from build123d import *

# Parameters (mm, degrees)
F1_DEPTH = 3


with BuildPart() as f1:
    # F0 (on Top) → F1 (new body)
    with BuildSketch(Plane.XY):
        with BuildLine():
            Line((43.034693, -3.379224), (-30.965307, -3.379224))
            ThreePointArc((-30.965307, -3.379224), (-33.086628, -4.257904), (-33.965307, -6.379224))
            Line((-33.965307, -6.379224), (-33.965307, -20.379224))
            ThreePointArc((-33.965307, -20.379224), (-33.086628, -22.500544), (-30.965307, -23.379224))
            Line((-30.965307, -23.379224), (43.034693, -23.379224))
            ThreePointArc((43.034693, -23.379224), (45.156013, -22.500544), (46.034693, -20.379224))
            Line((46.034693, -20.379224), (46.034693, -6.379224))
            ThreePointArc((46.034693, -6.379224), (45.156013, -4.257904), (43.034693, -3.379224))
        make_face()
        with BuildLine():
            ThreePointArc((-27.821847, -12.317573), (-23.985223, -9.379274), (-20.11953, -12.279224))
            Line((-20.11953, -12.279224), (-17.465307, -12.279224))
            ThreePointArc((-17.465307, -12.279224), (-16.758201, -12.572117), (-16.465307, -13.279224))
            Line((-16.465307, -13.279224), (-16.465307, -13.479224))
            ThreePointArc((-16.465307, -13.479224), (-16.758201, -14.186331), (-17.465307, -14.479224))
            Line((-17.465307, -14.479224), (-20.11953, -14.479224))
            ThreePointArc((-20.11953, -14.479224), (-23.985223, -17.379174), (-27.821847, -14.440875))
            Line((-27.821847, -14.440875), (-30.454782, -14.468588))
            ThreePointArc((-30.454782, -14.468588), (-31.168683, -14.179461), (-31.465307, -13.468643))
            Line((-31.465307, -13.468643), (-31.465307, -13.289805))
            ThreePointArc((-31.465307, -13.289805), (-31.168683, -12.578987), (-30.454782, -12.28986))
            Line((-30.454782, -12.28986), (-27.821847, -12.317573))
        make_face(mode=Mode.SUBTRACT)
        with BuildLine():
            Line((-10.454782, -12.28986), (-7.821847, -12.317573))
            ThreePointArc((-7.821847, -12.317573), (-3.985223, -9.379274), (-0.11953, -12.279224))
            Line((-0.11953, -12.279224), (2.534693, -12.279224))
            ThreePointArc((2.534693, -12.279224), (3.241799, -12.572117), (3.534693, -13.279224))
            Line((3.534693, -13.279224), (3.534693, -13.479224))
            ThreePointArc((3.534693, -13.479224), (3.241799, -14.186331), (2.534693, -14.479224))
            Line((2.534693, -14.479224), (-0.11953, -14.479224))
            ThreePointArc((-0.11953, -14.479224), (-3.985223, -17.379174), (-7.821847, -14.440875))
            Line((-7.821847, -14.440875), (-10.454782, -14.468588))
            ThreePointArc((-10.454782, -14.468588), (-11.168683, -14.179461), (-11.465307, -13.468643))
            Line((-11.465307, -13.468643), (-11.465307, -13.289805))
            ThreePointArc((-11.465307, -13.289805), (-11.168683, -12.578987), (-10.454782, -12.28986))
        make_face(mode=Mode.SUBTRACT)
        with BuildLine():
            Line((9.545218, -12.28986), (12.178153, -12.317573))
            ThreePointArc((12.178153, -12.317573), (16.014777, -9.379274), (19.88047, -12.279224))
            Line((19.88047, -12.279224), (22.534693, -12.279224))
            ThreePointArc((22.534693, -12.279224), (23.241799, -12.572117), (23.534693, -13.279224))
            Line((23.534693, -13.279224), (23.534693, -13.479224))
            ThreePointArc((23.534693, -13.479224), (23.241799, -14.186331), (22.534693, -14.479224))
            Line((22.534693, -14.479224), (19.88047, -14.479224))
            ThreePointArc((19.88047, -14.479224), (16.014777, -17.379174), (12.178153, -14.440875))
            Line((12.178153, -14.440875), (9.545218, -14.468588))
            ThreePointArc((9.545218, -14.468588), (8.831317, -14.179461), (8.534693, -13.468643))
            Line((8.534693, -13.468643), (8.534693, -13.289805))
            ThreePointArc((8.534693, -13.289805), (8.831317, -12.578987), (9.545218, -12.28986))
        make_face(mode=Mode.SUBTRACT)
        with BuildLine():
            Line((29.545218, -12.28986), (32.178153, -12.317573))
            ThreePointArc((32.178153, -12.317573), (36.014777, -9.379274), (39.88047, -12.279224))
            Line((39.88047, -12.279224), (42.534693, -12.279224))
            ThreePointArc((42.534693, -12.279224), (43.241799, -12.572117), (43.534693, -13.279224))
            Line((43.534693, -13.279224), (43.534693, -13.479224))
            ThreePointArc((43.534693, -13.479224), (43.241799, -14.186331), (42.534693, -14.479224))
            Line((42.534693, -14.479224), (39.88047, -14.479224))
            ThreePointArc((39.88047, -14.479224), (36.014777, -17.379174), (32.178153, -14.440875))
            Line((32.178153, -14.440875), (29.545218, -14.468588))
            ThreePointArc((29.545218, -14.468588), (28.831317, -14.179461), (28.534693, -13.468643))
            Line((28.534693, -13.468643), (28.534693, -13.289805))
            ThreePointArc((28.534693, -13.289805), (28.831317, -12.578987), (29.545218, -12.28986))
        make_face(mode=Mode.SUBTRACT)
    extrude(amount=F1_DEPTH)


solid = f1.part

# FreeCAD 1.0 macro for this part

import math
import FreeCAD as App
import Part
import Sketcher
from FreeCAD import Vector
Q = App.Units.Quantity

doc = App.newDocument("Part")
body = doc.addObject("PartDesign::Body", "Body")

# Sketch on XY plane
sketch1 = doc.addObject("Sketcher::SketchObject", "Sketch")
body.addObject(sketch1)
sketch1.AttachmentSupport = (doc.XY_Plane, [""])
sketch1.MapMode = "FlatFace"
sketch1.addGeometry(Part.LineSegment(Vector(43.03, -3.38, 0), Vector(-30.97, -3.38, 0)), False)
sketch1.addGeometry(Part.ArcOfCircle(Part.Circle(Vector(-30.97, -6.38, 0), Vector(0, 0, 1), 3), math.radians(90), math.radians(180)), False)
sketch1.addGeometry(Part.LineSegment(Vector(-33.97, -6.38, 0), Vector(-33.97, -20.38, 0)), False)
sketch1.addGeometry(Part.ArcOfCircle(Part.Circle(Vector(-30.97, -20.38, 0), Vector(0, 0, 1), 3), math.radians(180), math.radians(270)), False)
sketch1.addGeometry(Part.LineSegment(Vector(-30.97, -23.38, 0), Vector(43.03, -23.38, 0)), False)
sketch1.addGeometry(Part.ArcOfCircle(Part.Circle(Vector(43.03, -20.38, 0), Vector(0, 0, 1), 3), math.radians(-90), math.radians(0)), False)
sketch1.addGeometry(Part.LineSegment(Vector(46.03, -20.38, 0), Vector(46.03, -6.38, 0)), False)
sketch1.addGeometry(Part.ArcOfCircle(Part.Circle(Vector(43.03, -6.38, 0), Vector(0, 0, 1), 3), math.radians(0), math.radians(90)), False)
sketch1.addGeometry(Part.ArcOfCircle(Part.Circle(Vector(-10.47, -13.29, 0), Vector(0, 0, 1), 1), math.radians(89), math.radians(180)), False)
sketch1.addGeometry(Part.LineSegment(Vector(-10.45, -12.29, 0), Vector(-7.82, -12.32, 0)), False)
sketch1.addGeometry(Part.ArcOfCircle(Part.Circle(Vector(-3.97, -13.38, 0), Vector(0, 0, 1), 4), math.radians(16), math.radians(165)), False)
sketch1.addGeometry(Part.LineSegment(Vector(-0.12, -12.28, 0), Vector(2.53, -12.28, 0)), False)
sketch1.addGeometry(Part.ArcOfCircle(Part.Circle(Vector(2.53, -13.28, 0), Vector(0, 0, 1), 1), math.radians(0), math.radians(90)), False)
sketch1.addGeometry(Part.LineSegment(Vector(3.53, -13.28, 0), Vector(3.53, -13.48, 0)), False)
sketch1.addGeometry(Part.ArcOfCircle(Part.Circle(Vector(2.53, -13.48, 0), Vector(0, 0, 1), 1), math.radians(-90), math.radians(0)), False)
sketch1.addGeometry(Part.LineSegment(Vector(2.53, -14.48, 0), Vector(-0.12, -14.48, 0)), False)
sketch1.addGeometry(Part.ArcOfCircle(Part.Circle(Vector(-3.97, -13.38, 0), Vector(0, 0, 1), 4), math.radians(-165), math.radians(-16)), False)
sketch1.addGeometry(Part.LineSegment(Vector(-7.82, -14.44, 0), Vector(-10.45, -14.47, 0)), False)
sketch1.addGeometry(Part.ArcOfCircle(Part.Circle(Vector(-10.47, -13.47, 0), Vector(0, 0, 1), 1), math.radians(-180), math.radians(-89)), False)
sketch1.addGeometry(Part.LineSegment(Vector(-11.47, -13.47, 0), Vector(-11.47, -13.29, 0)), False)
sketch1.addGeometry(Part.ArcOfCircle(Part.Circle(Vector(9.53, -13.29, 0), Vector(0, 0, 1), 1), math.radians(89), math.radians(180)), False)
sketch1.addGeometry(Part.LineSegment(Vector(9.55, -12.29, 0), Vector(12.18, -12.32, 0)), False)
sketch1.addGeometry(Part.ArcOfCircle(Part.Circle(Vector(16.03, -13.38, 0), Vector(0, 0, 1), 4), math.radians(16), math.radians(165)), False)
sketch1.addGeometry(Part.LineSegment(Vector(19.88, -12.28, 0), Vector(22.53, -12.28, 0)), False)
sketch1.addGeometry(Part.ArcOfCircle(Part.Circle(Vector(22.53, -13.28, 0), Vector(0, 0, 1), 1), math.radians(0), math.radians(90)), False)
sketch1.addGeometry(Part.LineSegment(Vector(23.53, -13.28, 0), Vector(23.53, -13.48, 0)), False)
sketch1.addGeometry(Part.ArcOfCircle(Part.Circle(Vector(22.53, -13.48, 0), Vector(0, 0, 1), 1), math.radians(-90), math.radians(0)), False)
sketch1.addGeometry(Part.LineSegment(Vector(22.53, -14.48, 0), Vector(19.88, -14.48, 0)), False)
sketch1.addGeometry(Part.ArcOfCircle(Part.Circle(Vector(16.03, -13.38, 0), Vector(0, 0, 1), 4), math.radians(-165), math.radians(-16)), False)
sketch1.addGeometry(Part.LineSegment(Vector(12.18, -14.44, 0), Vector(9.55, -14.47, 0)), False)
sketch1.addGeometry(Part.ArcOfCircle(Part.Circle(Vector(9.53, -13.47, 0), Vector(0, 0, 1), 1), math.radians(-180), math.radians(-89)), False)
sketch1.addGeometry(Part.LineSegment(Vector(8.53, -13.47, 0), Vector(8.53, -13.29, 0)), False)
sketch1.addGeometry(Part.LineSegment(Vector(-30.45, -12.29, 0), Vector(-27.82, -12.32, 0)), False)
sketch1.addGeometry(Part.ArcOfCircle(Part.Circle(Vector(-23.97, -13.38, 0), Vector(0, 0, 1), 4), math.radians(16), math.radians(165)), False)
sketch1.addGeometry(Part.LineSegment(Vector(-20.12, -12.28, 0), Vector(-17.47, -12.28, 0)), False)
sketch1.addGeometry(Part.ArcOfCircle(Part.Circle(Vector(-17.47, -13.28, 0), Vector(0, 0, 1), 1), math.radians(0), math.radians(90)), False)
sketch1.addGeometry(Part.LineSegment(Vector(-16.47, -13.28, 0), Vector(-16.47, -13.48, 0)), False)
sketch1.addGeometry(Part.ArcOfCircle(Part.Circle(Vector(-17.47, -13.48, 0), Vector(0, 0, 1), 1), math.radians(-90), math.radians(0)), False)
sketch1.addGeometry(Part.LineSegment(Vector(-17.47, -14.48, 0), Vector(-20.12, -14.48, 0)), False)
sketch1.addGeometry(Part.ArcOfCircle(Part.Circle(Vector(-23.97, -13.38, 0), Vector(0, 0, 1), 4), math.radians(-165), math.radians(-16)), False)
sketch1.addGeometry(Part.LineSegment(Vector(-27.82, -14.44, 0), Vector(-30.45, -14.47, 0)), False)
sketch1.addGeometry(Part.ArcOfCircle(Part.Circle(Vector(-30.47, -13.47, 0), Vector(0, 0, 1), 1), math.radians(-180), math.radians(-89)), False)
sketch1.addGeometry(Part.LineSegment(Vector(-31.47, -13.47, 0), Vector(-31.47, -13.29, 0)), False)
sketch1.addGeometry(Part.ArcOfCircle(Part.Circle(Vector(-30.47, -13.29, 0), Vector(0, 0, 1), 1), math.radians(89), math.radians(180)), False)
sketch1.addGeometry(Part.ArcOfCircle(Part.Circle(Vector(29.53, -13.29, 0), Vector(0, 0, 1), 1), math.radians(89), math.radians(180)), False)
sketch1.addGeometry(Part.LineSegment(Vector(29.55, -12.29, 0), Vector(32.18, -12.32, 0)), False)
sketch1.addGeometry(Part.ArcOfCircle(Part.Circle(Vector(36.03, -13.38, 0), Vector(0, 0, 1), 4), math.radians(16), math.radians(165)), False)
sketch1.addGeometry(Part.LineSegment(Vector(39.88, -12.28, 0), Vector(42.53, -12.28, 0)), False)
sketch1.addGeometry(Part.ArcOfCircle(Part.Circle(Vector(42.53, -13.28, 0), Vector(0, 0, 1), 1), math.radians(0), math.radians(90)), False)
sketch1.addGeometry(Part.LineSegment(Vector(43.53, -13.28, 0), Vector(43.53, -13.48, 0)), False)
sketch1.addGeometry(Part.ArcOfCircle(Part.Circle(Vector(42.53, -13.48, 0), Vector(0, 0, 1), 1), math.radians(-90), math.radians(0)), False)
sketch1.addGeometry(Part.LineSegment(Vector(42.53, -14.48, 0), Vector(39.88, -14.48, 0)), False)
sketch1.addGeometry(Part.ArcOfCircle(Part.Circle(Vector(36.03, -13.38, 0), Vector(0, 0, 1), 4), math.radians(-165), math.radians(-16)), False)
sketch1.addGeometry(Part.LineSegment(Vector(32.18, -14.44, 0), Vector(29.55, -14.47, 0)), False)
sketch1.addGeometry(Part.ArcOfCircle(Part.Circle(Vector(29.53, -13.47, 0), Vector(0, 0, 1), 1), math.radians(-180), math.radians(-89)), False)
sketch1.addGeometry(Part.LineSegment(Vector(28.53, -13.47, 0), Vector(28.53, -13.29, 0)), False)
sketch1.addConstraint(Sketcher.Constraint("Tangent", 0, 2, 1, 1))
sketch1.addConstraint(Sketcher.Constraint("Tangent", 1, 2, 2, 1))
sketch1.addConstraint(Sketcher.Constraint("Tangent", 2, 2, 3, 1))
sketch1.addConstraint(Sketcher.Constraint("Tangent", 3, 2, 4, 1))
sketch1.addConstraint(Sketcher.Constraint("Tangent", 4, 2, 5, 1))
sketch1.addConstraint(Sketcher.Constraint("Tangent", 5, 2, 6, 1))
sketch1.addConstraint(Sketcher.Constraint("Tangent", 6, 2, 7, 1))
sketch1.addConstraint(Sketcher.Constraint("Tangent", 7, 2, 0, 1))
sketch1.addConstraint(Sketcher.Constraint("Tangent", 8, 1, 9, 1))
sketch1.addConstraint(Sketcher.Constraint("Coincident", 9, 2, 10, 2))
sketch1.addConstraint(Sketcher.Constraint("Coincident", 10, 1, 11, 1))
sketch1.addConstraint(Sketcher.Constraint("Tangent", 11, 2, 12, 2))
sketch1.addConstraint(Sketcher.Constraint("Tangent", 12, 1, 13, 1))
sketch1.addConstraint(Sketcher.Constraint("Tangent", 13, 2, 14, 2))
sketch1.addConstraint(Sketcher.Constraint("Tangent", 14, 1, 15, 1))
sketch1.addConstraint(Sketcher.Constraint("Coincident", 15, 2, 16, 2))
sketch1.addConstraint(Sketcher.Constraint("Coincident", 16, 1, 17, 1))
sketch1.addConstraint(Sketcher.Constraint("Tangent", 17, 2, 18, 2))
sketch1.addConstraint(Sketcher.Constraint("Tangent", 18, 1, 19, 1))
sketch1.addConstraint(Sketcher.Constraint("Tangent", 19, 2, 8, 2))
sketch1.addConstraint(Sketcher.Constraint("Tangent", 20, 1, 21, 1))
sketch1.addConstraint(Sketcher.Constraint("Coincident", 21, 2, 22, 2))
sketch1.addConstraint(Sketcher.Constraint("Coincident", 22, 1, 23, 1))
sketch1.addConstraint(Sketcher.Constraint("Tangent", 23, 2, 24, 2))
sketch1.addConstraint(Sketcher.Constraint("Tangent", 24, 1, 25, 1))
sketch1.addConstraint(Sketcher.Constraint("Tangent", 25, 2, 26, 2))
sketch1.addConstraint(Sketcher.Constraint("Tangent", 26, 1, 27, 1))
sketch1.addConstraint(Sketcher.Constraint("Coincident", 27, 2, 28, 2))
sketch1.addConstraint(Sketcher.Constraint("Coincident", 28, 1, 29, 1))
sketch1.addConstraint(Sketcher.Constraint("Tangent", 29, 2, 30, 2))
sketch1.addConstraint(Sketcher.Constraint("Tangent", 30, 1, 31, 1))
sketch1.addConstraint(Sketcher.Constraint("Tangent", 31, 2, 20, 2))
sketch1.addConstraint(Sketcher.Constraint("Coincident", 32, 2, 33, 2))
sketch1.addConstraint(Sketcher.Constraint("Coincident", 33, 1, 34, 1))
sketch1.addConstraint(Sketcher.Constraint("Tangent", 34, 2, 35, 2))
sketch1.addConstraint(Sketcher.Constraint("Tangent", 35, 1, 36, 1))
sketch1.addConstraint(Sketcher.Constraint("Tangent", 36, 2, 37, 2))
sketch1.addConstraint(Sketcher.Constraint("Tangent", 37, 1, 38, 1))
sketch1.addConstraint(Sketcher.Constraint("Coincident", 38, 2, 39, 2))
sketch1.addConstraint(Sketcher.Constraint("Coincident", 39, 1, 40, 1))
sketch1.addConstraint(Sketcher.Constraint("Tangent", 40, 2, 41, 2))
sketch1.addConstraint(Sketcher.Constraint("Tangent", 41, 1, 42, 1))
sketch1.addConstraint(Sketcher.Constraint("Tangent", 42, 2, 43, 2))
sketch1.addConstraint(Sketcher.Constraint("Tangent", 43, 1, 32, 1))
sketch1.addConstraint(Sketcher.Constraint("Tangent", 44, 1, 45, 1))
sketch1.addConstraint(Sketcher.Constraint("Coincident", 45, 2, 46, 2))
sketch1.addConstraint(Sketcher.Constraint("Coincident", 46, 1, 47, 1))
sketch1.addConstraint(Sketcher.Constraint("Tangent", 47, 2, 48, 2))
sketch1.addConstraint(Sketcher.Constraint("Tangent", 48, 1, 49, 1))
sketch1.addConstraint(Sketcher.Constraint("Tangent", 49, 2, 50, 2))
sketch1.addConstraint(Sketcher.Constraint("Tangent", 50, 1, 51, 1))
sketch1.addConstraint(Sketcher.Constraint("Coincident", 51, 2, 52, 2))
sketch1.addConstraint(Sketcher.Constraint("Coincident", 52, 1, 53, 1))
sketch1.addConstraint(Sketcher.Constraint("Tangent", 53, 2, 54, 2))
sketch1.addConstraint(Sketcher.Constraint("Tangent", 54, 1, 55, 1))
sketch1.addConstraint(Sketcher.Constraint("Tangent", 55, 2, 44, 2))
sketch1.addConstraint(Sketcher.Constraint("Horizontal", 0))
sketch1.addConstraint(Sketcher.Constraint("Vertical", 2))
sketch1.addConstraint(Sketcher.Constraint("Horizontal", 4))
sketch1.addConstraint(Sketcher.Constraint("Vertical", 6))
sketch1.addConstraint(Sketcher.Constraint("Horizontal", 11))
sketch1.addConstraint(Sketcher.Constraint("Vertical", 13))
sketch1.addConstraint(Sketcher.Constraint("Horizontal", 15))
sketch1.addConstraint(Sketcher.Constraint("Vertical", 19))
sketch1.addConstraint(Sketcher.Constraint("Horizontal", 23))
sketch1.addConstraint(Sketcher.Constraint("Vertical", 25))
sketch1.addConstraint(Sketcher.Constraint("Horizontal", 27))
sketch1.addConstraint(Sketcher.Constraint("Vertical", 31))
sketch1.addConstraint(Sketcher.Constraint("Horizontal", 34))
sketch1.addConstraint(Sketcher.Constraint("Vertical", 36))
sketch1.addConstraint(Sketcher.Constraint("Horizontal", 38))
sketch1.addConstraint(Sketcher.Constraint("Vertical", 42))
sketch1.addConstraint(Sketcher.Constraint("Horizontal", 47))
sketch1.addConstraint(Sketcher.Constraint("Vertical", 49))
sketch1.addConstraint(Sketcher.Constraint("Horizontal", 51))
sketch1.addConstraint(Sketcher.Constraint("Vertical", 55))
sketch1.addConstraint(Sketcher.Constraint("Coincident", 16, 3, 10, 3))
sketch1.addConstraint(Sketcher.Constraint("Coincident", 28, 3, 22, 3))
sketch1.addConstraint(Sketcher.Constraint("Coincident", 39, 3, 33, 3))
sketch1.addConstraint(Sketcher.Constraint("Coincident", 52, 3, 46, 3))
sketch1.addConstraint(Sketcher.Constraint("Equal", 1, 3))
sketch1.addConstraint(Sketcher.Constraint("Equal", 3, 5))
sketch1.addConstraint(Sketcher.Constraint("Equal", 5, 7))
sketch1.addConstraint(Sketcher.Constraint("Equal", 8, 12))
sketch1.addConstraint(Sketcher.Constraint("Equal", 12, 14))
sketch1.addConstraint(Sketcher.Constraint("Equal", 10, 16))
sketch1.addConstraint(Sketcher.Constraint("Equal", 14, 18))
sketch1.addConstraint(Sketcher.Constraint("Equal", 18, 20))
sketch1.addConstraint(Sketcher.Constraint("Equal", 16, 22))
sketch1.addConstraint(Sketcher.Constraint("Equal", 20, 24))
sketch1.addConstraint(Sketcher.Constraint("Equal", 24, 26))
sketch1.addConstraint(Sketcher.Constraint("Equal", 22, 28))
sketch1.addConstraint(Sketcher.Constraint("Equal", 26, 30))
sketch1.addConstraint(Sketcher.Constraint("Equal", 28, 33))
sketch1.addConstraint(Sketcher.Constraint("Equal", 30, 35))
sketch1.addConstraint(Sketcher.Constraint("Equal", 35, 37))
sketch1.addConstraint(Sketcher.Constraint("Equal", 33, 39))
sketch1.addConstraint(Sketcher.Constraint("Equal", 37, 41))
sketch1.addConstraint(Sketcher.Constraint("Equal", 41, 43))
sketch1.addConstraint(Sketcher.Constraint("Equal", 43, 44))
sketch1.addConstraint(Sketcher.Constraint("Equal", 39, 46))
sketch1.addConstraint(Sketcher.Constraint("Equal", 44, 48))
sketch1.addConstraint(Sketcher.Constraint("Equal", 48, 50))
sketch1.addConstraint(Sketcher.Constraint("Equal", 46, 52))
sketch1.addConstraint(Sketcher.Constraint("Equal", 50, 54))
sketch1.addConstraint(Sketcher.Constraint("Parallel", 9, 21))
sketch1.addConstraint(Sketcher.Constraint("Parallel", 17, 29))
sketch1.addConstraint(Sketcher.Constraint("Parallel", 21, 32))
sketch1.addConstraint(Sketcher.Constraint("Parallel", 29, 40))
sketch1.addConstraint(Sketcher.Constraint("Parallel", 32, 45))
sketch1.addConstraint(Sketcher.Constraint("Parallel", 40, 53))
sketch1.addConstraint(Sketcher.Constraint("Horizontal", 8, 3, 20, 3))
sketch1.addConstraint(Sketcher.Constraint("Horizontal", 16, 3, 22, 3))
sketch1.addConstraint(Sketcher.Constraint("Horizontal", 12, 3, 24, 3))
sketch1.addConstraint(Sketcher.Constraint("Horizontal", 14, 3, 26, 3))
sketch1.addConstraint(Sketcher.Constraint("Horizontal", 18, 3, 30, 3))
sketch1.addConstraint(Sketcher.Constraint("Horizontal", 28, 3, 33, 3))
sketch1.addConstraint(Sketcher.Constraint("Horizontal", 24, 3, 35, 3))
sketch1.addConstraint(Sketcher.Constraint("Horizontal", 26, 3, 37, 3))
sketch1.addConstraint(Sketcher.Constraint("Horizontal", 30, 3, 41, 3))
sketch1.addConstraint(Sketcher.Constraint("Horizontal", 20, 3, 43, 3))
sketch1.addConstraint(Sketcher.Constraint("Horizontal", 43, 3, 44, 3))
sketch1.addConstraint(Sketcher.Constraint("Horizontal", 39, 3, 46, 3))
sketch1.addConstraint(Sketcher.Constraint("Horizontal", 35, 3, 48, 3))
sketch1.addConstraint(Sketcher.Constraint("Horizontal", 37, 3, 50, 3))
sketch1.addConstraint(Sketcher.Constraint("Horizontal", 41, 3, 54, 3))
sketch1.addConstraint(Sketcher.Constraint("Horizontal", 9, 2, 21, 2))
sketch1.addConstraint(Sketcher.Constraint("Horizontal", 21, 2, 32, 2))
sketch1.addConstraint(Sketcher.Constraint("Horizontal", 32, 2, 45, 2))
sketch1.addConstraint(Sketcher.Constraint("Vertical", 10, 1, 15, 2))
sketch1.addConstraint(Sketcher.Constraint("Vertical", 9, 2, 16, 1))
sketch1.addConstraint(Sketcher.Constraint("Vertical", 8, 1, 17, 2))
sketch1.addConstraint(Sketcher.Constraint("Equal", 15, 23))
sketch1.addConstraint(Sketcher.Constraint("Equal", 27, 34))
sketch1.addConstraint(Sketcher.Constraint("Equal", 38, 47))
sketch1.addConstraint(Sketcher.Constraint("Radius", 1, Q("2.999999 mm")))
sketch1.addConstraint(Sketcher.Constraint("Radius", 8, Q("1.000001 mm")))
sketch1.addConstraint(Sketcher.Constraint("Radius", 10, Q("4.000001 mm")))
sketch1.addConstraint(Sketcher.Constraint("DistanceX", 0, 2, 0, 1, Q("74 mm")))
sketch1.addConstraint(Sketcher.Constraint("DistanceY", 2, 2, 2, 1, Q("14 mm")))
sketch1.addConstraint(Sketcher.Constraint("DistanceY", 13, 2, 13, 1, Q("0.2 mm")))
sketch1.addConstraint(Sketcher.Constraint("DistanceY", 19, 1, 19, 2, Q("0.178838 mm")))
sketch1.addConstraint(Sketcher.Constraint("Distance", 9, Q("2.633081 mm")))
sketch1.addConstraint(Sketcher.Constraint("DistanceX", 11, 1, 11, 2, Q("2.654223 mm")))
sketch1.addConstraint(Sketcher.Constraint("DistanceX", -1, 1, 5, 3, Q("43.034692 mm")))
sketch1.addConstraint(Sketcher.Constraint("DistanceX", 8, 1, -1, 1, Q("10.454782 mm")))
sketch1.addConstraint(Sketcher.Constraint("DistanceY", 8, 1, -1, 1, Q("12.28986 mm")))
sketch1.addConstraint(Sketcher.Constraint("DistanceX", 10, 1, -1, 1, Q("0.11953 mm")))
sketch1.addConstraint(Sketcher.Constraint("DistanceX", -1, 1, 20, 1, Q("9.545218 mm")))
sketch1.addConstraint(Sketcher.Constraint("DistanceX", 33, 1, -1, 1, Q("20.11953 mm")))
sketch1.addConstraint(Sketcher.Constraint("DistanceX", -1, 1, 44, 1, Q("29.545218 mm")))
sketch1.addConstraint(Sketcher.Constraint("DistanceY", 1, 3, -1, 1, Q("6.379223 mm")))
pad1 = doc.addObject("PartDesign::Pad", "Pad")
body.addObject(pad1)
pad1.Profile = sketch1
pad1.Length = 3

doc.recompute()
